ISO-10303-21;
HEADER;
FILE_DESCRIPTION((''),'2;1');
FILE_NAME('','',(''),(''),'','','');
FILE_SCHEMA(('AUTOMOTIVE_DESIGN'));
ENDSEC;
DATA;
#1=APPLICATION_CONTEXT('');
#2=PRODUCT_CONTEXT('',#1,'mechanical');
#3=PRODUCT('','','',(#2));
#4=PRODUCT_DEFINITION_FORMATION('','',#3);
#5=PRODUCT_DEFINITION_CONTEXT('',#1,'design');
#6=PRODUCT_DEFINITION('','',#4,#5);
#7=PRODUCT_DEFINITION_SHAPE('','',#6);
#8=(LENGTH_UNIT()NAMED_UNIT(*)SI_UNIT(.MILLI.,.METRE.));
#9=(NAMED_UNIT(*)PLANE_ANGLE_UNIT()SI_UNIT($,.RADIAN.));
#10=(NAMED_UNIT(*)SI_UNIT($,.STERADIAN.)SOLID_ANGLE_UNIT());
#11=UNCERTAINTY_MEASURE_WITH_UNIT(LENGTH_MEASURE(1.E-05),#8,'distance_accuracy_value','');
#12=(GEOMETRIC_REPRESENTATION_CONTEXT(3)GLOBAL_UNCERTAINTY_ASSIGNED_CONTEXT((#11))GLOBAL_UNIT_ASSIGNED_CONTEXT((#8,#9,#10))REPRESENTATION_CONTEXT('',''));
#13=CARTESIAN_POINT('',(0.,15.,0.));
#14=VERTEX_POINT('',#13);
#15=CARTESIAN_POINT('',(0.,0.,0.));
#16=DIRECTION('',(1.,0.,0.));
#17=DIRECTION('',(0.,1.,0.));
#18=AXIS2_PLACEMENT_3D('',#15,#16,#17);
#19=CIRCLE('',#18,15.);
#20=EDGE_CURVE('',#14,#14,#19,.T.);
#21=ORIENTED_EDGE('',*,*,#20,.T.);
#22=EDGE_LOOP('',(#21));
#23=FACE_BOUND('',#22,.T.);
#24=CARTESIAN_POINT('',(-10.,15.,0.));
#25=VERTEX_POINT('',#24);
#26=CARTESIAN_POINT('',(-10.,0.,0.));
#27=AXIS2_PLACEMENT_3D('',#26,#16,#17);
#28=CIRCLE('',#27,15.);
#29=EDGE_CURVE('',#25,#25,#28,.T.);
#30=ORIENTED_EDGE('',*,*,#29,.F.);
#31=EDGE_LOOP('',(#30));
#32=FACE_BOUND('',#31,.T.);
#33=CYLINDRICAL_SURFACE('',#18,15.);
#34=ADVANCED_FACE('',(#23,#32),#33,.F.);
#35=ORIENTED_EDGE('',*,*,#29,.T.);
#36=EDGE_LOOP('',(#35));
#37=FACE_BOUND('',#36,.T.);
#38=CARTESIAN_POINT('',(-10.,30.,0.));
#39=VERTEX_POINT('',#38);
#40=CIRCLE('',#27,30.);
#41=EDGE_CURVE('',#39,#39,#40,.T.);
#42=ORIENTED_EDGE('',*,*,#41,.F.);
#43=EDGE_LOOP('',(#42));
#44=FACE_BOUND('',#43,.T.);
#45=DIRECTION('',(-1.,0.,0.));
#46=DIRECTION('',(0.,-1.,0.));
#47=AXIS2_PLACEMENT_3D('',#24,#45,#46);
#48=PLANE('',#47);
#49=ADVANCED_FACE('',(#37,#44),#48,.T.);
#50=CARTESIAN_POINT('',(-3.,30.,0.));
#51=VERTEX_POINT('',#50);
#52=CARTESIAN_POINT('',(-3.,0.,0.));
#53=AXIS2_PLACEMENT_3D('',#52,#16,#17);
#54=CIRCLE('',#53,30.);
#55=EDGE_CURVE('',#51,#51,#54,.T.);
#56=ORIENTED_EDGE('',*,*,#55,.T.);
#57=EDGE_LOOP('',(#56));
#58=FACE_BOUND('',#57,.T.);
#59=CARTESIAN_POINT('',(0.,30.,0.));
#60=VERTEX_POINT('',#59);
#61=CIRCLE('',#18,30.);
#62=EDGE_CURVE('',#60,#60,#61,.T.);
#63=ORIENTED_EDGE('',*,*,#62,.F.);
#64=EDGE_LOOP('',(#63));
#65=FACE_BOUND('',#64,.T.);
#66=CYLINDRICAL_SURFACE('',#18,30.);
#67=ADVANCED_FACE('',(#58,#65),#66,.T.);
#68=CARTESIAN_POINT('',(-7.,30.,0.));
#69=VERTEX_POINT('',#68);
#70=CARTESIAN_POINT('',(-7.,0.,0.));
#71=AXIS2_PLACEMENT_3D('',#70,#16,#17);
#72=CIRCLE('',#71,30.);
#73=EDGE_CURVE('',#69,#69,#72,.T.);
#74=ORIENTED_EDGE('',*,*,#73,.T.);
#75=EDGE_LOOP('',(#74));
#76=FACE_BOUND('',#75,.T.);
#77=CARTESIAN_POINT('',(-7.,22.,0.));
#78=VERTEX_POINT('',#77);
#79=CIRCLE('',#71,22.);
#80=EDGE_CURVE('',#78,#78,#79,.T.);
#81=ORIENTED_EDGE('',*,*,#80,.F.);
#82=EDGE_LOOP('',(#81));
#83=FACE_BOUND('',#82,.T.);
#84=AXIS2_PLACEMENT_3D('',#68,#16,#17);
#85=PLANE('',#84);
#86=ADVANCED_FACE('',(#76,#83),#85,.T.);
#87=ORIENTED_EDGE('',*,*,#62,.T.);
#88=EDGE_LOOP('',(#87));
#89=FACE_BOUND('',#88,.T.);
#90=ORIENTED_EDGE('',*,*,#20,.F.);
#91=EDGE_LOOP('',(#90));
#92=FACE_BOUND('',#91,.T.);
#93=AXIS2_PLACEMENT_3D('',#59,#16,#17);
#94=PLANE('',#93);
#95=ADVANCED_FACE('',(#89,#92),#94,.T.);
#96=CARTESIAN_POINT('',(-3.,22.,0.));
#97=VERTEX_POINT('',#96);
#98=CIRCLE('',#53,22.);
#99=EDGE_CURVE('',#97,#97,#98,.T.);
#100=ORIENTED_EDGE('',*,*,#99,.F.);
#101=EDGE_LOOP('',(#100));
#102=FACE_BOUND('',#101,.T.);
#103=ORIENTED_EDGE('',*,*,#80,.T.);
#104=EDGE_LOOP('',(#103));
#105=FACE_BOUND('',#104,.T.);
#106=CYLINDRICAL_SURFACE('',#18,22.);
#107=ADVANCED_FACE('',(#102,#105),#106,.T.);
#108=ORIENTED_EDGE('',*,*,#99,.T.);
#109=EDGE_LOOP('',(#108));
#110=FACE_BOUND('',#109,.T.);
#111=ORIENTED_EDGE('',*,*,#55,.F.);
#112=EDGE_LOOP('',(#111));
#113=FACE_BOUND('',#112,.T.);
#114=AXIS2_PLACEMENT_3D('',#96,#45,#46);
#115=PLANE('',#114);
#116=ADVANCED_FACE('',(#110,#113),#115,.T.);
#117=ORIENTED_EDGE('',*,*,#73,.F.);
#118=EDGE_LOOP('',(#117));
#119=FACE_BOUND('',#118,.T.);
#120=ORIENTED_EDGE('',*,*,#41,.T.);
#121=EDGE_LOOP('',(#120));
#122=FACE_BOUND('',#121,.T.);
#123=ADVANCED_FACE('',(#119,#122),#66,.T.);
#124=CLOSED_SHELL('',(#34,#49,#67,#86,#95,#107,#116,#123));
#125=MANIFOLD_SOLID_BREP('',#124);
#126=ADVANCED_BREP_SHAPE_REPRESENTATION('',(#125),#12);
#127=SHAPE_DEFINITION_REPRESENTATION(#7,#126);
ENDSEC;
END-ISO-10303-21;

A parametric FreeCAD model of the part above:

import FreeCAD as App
import Part
import Sketcher

V = App.Vector
Q = App.Units.Quantity


def add_polygon(sketch, points):
    """Adds a closed chain of lines whose ends are joined by coincident constraints."""
    first, n = sketch.GeometryCount, len(points)
    for a, b in zip(points, points[1:] + points[:1]):
        sketch.addGeometry(Part.LineSegment(App.Vector(*a, 0), App.Vector(*b, 0)), False)
    for i in range(n):
        sketch.addConstraint(Sketcher.Constraint("Coincident", first + i, 2, first + (i + 1) % n, 1))

doc = App.newDocument("Part")
body = doc.addObject("PartDesign::Body", "Body")

# Sketch on XY plane
sketch1 = body.newObject("Sketcher::SketchObject", "Sketch")
sketch1.AttachmentSupport = (doc.getObject("XY_Plane"), [""])
sketch1.MapMode = "FlatFace"
add_polygon(sketch1, [(-10, 15), (0, 15), (0, 30), (-3, 30), (-3, 22), (-7, 22), (-7, 30), (-10, 30)])  # lines 0-7
sketch1.addConstraint(Sketcher.Constraint("Horizontal", 0))
sketch1.addConstraint(Sketcher.Constraint("Vertical", 1))
sketch1.addConstraint(Sketcher.Constraint("Horizontal", 2))
sketch1.addConstraint(Sketcher.Constraint("Vertical", 3))
sketch1.addConstraint(Sketcher.Constraint("Horizontal", 4))
sketch1.addConstraint(Sketcher.Constraint("Vertical", 5))
sketch1.addConstraint(Sketcher.Constraint("Horizontal", 6))
sketch1.addConstraint(Sketcher.Constraint("Vertical", 7))
sketch1.addConstraint(Sketcher.Constraint("PointOnObject", 0, 2, -2))
sketch1.addConstraint(Sketcher.Constraint("Horizontal", 2, 2, 5, 2))
sketch1.addConstraint(Sketcher.Constraint("Equal", 2, 6))
sketch1.addConstraint(Sketcher.Constraint("DistanceX", 0, 1, 0, 2, Q("10 mm")))
sketch1.addConstraint(Sketcher.Constraint("DistanceX", 2, 2, 2, 1, Q("3 mm")))
sketch1.addConstraint(Sketcher.Constraint("DistanceY", 1, 1, 1, 2, Q("15 mm")))
sketch1.addConstraint(Sketcher.Constraint("DistanceY", 3, 2, 3, 1, Q("8 mm")))
sketch1.addConstraint(Sketcher.Constraint("DistanceY", -1, 1, 0, 2, Q("15 mm")))
revolution = body.newObject("PartDesign::Revolution", "Revolution")
revolution.Profile = sketch1
revolution.ReferenceAxis = (sketch1, ["H_Axis"])
revolution.Angle = 360

doc.recompute()
